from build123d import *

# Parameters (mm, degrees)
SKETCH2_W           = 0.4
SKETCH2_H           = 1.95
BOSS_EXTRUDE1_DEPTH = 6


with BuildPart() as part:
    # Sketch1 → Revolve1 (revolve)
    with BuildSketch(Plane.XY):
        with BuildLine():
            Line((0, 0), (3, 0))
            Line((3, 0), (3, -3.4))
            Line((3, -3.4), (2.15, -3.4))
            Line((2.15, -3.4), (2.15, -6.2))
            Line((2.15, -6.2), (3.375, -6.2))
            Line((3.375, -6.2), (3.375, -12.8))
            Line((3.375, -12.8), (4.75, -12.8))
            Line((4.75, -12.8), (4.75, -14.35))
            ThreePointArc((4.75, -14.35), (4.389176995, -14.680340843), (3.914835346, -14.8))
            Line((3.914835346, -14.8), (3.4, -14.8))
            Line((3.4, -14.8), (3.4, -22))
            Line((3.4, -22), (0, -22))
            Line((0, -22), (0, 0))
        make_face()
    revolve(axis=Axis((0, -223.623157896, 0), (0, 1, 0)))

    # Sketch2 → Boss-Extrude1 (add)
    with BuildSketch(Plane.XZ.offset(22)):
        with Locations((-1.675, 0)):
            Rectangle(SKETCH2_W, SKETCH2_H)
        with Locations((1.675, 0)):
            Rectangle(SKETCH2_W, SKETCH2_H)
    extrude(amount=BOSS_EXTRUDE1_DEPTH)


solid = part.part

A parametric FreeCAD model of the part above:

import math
import FreeCAD as App
import Part
import Sketcher

doc = App.newDocument("Part")
params = doc.addObject("Spreadsheet::Sheet", "Params")
for row, (alias, value) in enumerate([
    ("sketch1_radius", "1 mm"),
    ("sketch1_width", "3 mm"),
    ("sketch1_height", "22 mm"),
    ("sketch1_width2", "3.4 mm"),
    ("sketch1_height2", "7.2 mm"),
    ("revolution_angle", "360 deg"),
    ("sketch2_width", "0.4 mm"),
    ("sketch2_height", "1.95 mm"),
    ("pad1_length", "6 mm"),
], start=1):
    params.set(f"A{row}", alias)
    params.set(f"B{row}", "=" + value)
    params.setAlias(f"B{row}", alias)

body = doc.addObject("PartDesign::Body", "Body")

# Sketch on XY plane
sketch1 = body.newObject("Sketcher::SketchObject", "Sketch")
sketch1.AttachmentSupport = (doc.getObject("XY_Plane"), [""])
sketch1.MapMode = "FlatFace"
sketch1.addGeometry([
    Part.LineSegment(App.Vector(3, 0, 0), App.Vector(0, 0, 0)),  # 0
    Part.LineSegment(App.Vector(0, 0, 0), App.Vector(0, -22, 0)),  # 1
    Part.LineSegment(App.Vector(0, -22, 0), App.Vector(3.4, -22, 0)),  # 2
    Part.LineSegment(App.Vector(3.4, -22, 0), App.Vector(3.4, -14.8, 0)),  # 3
    Part.LineSegment(App.Vector(3.4, -14.8, 0), App.Vector(3.9, -14.8, 0)),  # 4
    Part.ArcOfCircle(Part.Circle(App.Vector(3.9, -13.8, 0), App.Vector(0, 0, 1), 1), math.radians(-90), math.radians(-33)),  # 5
    Part.LineSegment(App.Vector(4.8, -14.3, 0), App.Vector(4.8, -12.8, 0)),  # 6
    Part.LineSegment(App.Vector(4.8, -12.8, 0), App.Vector(3.4, -12.8, 0)),  # 7
    Part.LineSegment(App.Vector(3.4, -12.8, 0), App.Vector(3.4, -6.2, 0)),  # 8
    Part.LineSegment(App.Vector(3.4, -6.2, 0), App.Vector(2.1, -6.2, 0)),  # 9
    Part.LineSegment(App.Vector(2.1, -6.2, 0), App.Vector(2.1, -3.4, 0)),  # 10
    Part.LineSegment(App.Vector(2.1, -3.4, 0), App.Vector(3, -3.4, 0)),  # 11
    Part.LineSegment(App.Vector(3, -3.4, 0), App.Vector(3, 0, 0)),  # 12
], False)
sketch1.addConstraint([
    Sketcher.Constraint("Coincident", 0, 2, 1, 1),
    Sketcher.Constraint("Coincident", 1, 2, 2, 1),
    Sketcher.Constraint("Coincident", 2, 2, 3, 1),
    Sketcher.Constraint("Coincident", 3, 2, 4, 1),
    Sketcher.Constraint("Tangent", 4, 2, 5, 1),
    Sketcher.Constraint("Coincident", 5, 2, 6, 1),
    Sketcher.Constraint("Coincident", 6, 2, 7, 1),
    Sketcher.Constraint("Coincident", 7, 2, 8, 1),
    Sketcher.Constraint("Coincident", 8, 2, 9, 1),
    Sketcher.Constraint("Coincident", 9, 2, 10, 1),
    Sketcher.Constraint("Coincident", 10, 2, 11, 1),
    Sketcher.Constraint("Coincident", 11, 2, 12, 1),
    Sketcher.Constraint("Coincident", 12, 2, 0, 1),
    Sketcher.Constraint("Horizontal", 0),
    Sketcher.Constraint("Vertical", 1),
    Sketcher.Constraint("Horizontal", 2),
    Sketcher.Constraint("Vertical", 3),
    Sketcher.Constraint("Horizontal", 4),
    Sketcher.Constraint("Vertical", 6),
    Sketcher.Constraint("Horizontal", 7),
    Sketcher.Constraint("Vertical", 8),
    Sketcher.Constraint("Horizontal", 9),
    Sketcher.Constraint("Vertical", 10),
    Sketcher.Constraint("Horizontal", 11),
    Sketcher.Constraint("Vertical", 12),
    Sketcher.Constraint("Coincident", 0, 2, -1, 1),
    Sketcher.Constraint("Equal", 2, 12),
    Sketcher.Constraint("Radius", 5, 1.0),
    Sketcher.Constraint("DistanceX", 0, 2, 0, 1, 3.0),
    Sketcher.Constraint("DistanceY", 1, 2, 1, 1, 22.0),
    Sketcher.Constraint("DistanceX", 2, 1, 2, 2, 3.4),
    Sketcher.Constraint("DistanceY", 3, 1, 3, 2, 7.2),
    Sketcher.Constraint("DistanceY", 8, 1, 8, 2, 6.6),
    Sketcher.Constraint("DistanceY", 10, 1, 10, 2, 2.8),
    Sketcher.Constraint("DistanceX", 11, 1, 11, 2, 0.85),
    Sketcher.Constraint("DistanceY", 6, 1, 6, 2, 1.55),
    Sketcher.Constraint("DistanceX", 9, 2, 6, 2, 2.6),
    Sketcher.Constraint("DistanceX", 7, 2, 7, 1, 1.375),
])
sketch1.setExpression("Constraints[27]", "Params.sketch1_radius")
sketch1.setExpression("Constraints[28]", "Params.sketch1_width")
sketch1.setExpression("Constraints[29]", "Params.sketch1_height")
sketch1.setExpression("Constraints[30]", "Params.sketch1_width2")
sketch1.setExpression("Constraints[31]", "Params.sketch1_height2")
revolution = body.newObject("PartDesign::Revolution", "Revolution")
revolution.Profile = sketch1
revolution.ReferenceAxis = (sketch1, ["V_Axis"])
revolution.setExpression("Angle", "Params.revolution_angle")

# Sketch on XZ plane
sketch2 = body.newObject("Sketcher::SketchObject", "Sketch001")
sketch2.AttachmentSupport = (doc.getObject("XZ_Plane"), [""])
sketch2.MapMode = "FlatFace"
sketch2.AttachmentOffset = App.Placement(App.Vector(0, 0, 22), App.Rotation())
sketch2.addGeometry([
    Part.LineSegment(App.Vector(-1.88, 0.97, 0), App.Vector(-1.88, -0.97, 0)),  # 0
    Part.LineSegment(App.Vector(-1.88, -0.97, 0), App.Vector(-1.48, -0.97, 0)),  # 1
    Part.LineSegment(App.Vector(-1.48, -0.97, 0), App.Vector(-1.48, 0.97, 0)),  # 2
    Part.LineSegment(App.Vector(-1.48, 0.97, 0), App.Vector(-1.88, 0.97, 0)),  # 3
    Part.LineSegment(App.Vector(1.48, 0.97, 0), App.Vector(1.48, -0.97, 0)),  # 4
    Part.LineSegment(App.Vector(1.48, -0.97, 0), App.Vector(1.88, -0.97, 0)),  # 5
    Part.LineSegment(App.Vector(1.88, -0.97, 0), App.Vector(1.88, 0.97, 0)),  # 6
    Part.LineSegment(App.Vector(1.88, 0.97, 0), App.Vector(1.48, 0.97, 0)),  # 7
], False)
sketch2.addConstraint([
    Sketcher.Constraint("Coincident", 0, 2, 1, 1),
    Sketcher.Constraint("Coincident", 1, 2, 2, 1),
    Sketcher.Constraint("Coincident", 2, 2, 3, 1),
    Sketcher.Constraint("Coincident", 3, 2, 0, 1),
    Sketcher.Constraint("Coincident", 4, 2, 5, 1),
    Sketcher.Constraint("Coincident", 5, 2, 6, 1),
    Sketcher.Constraint("Coincident", 6, 2, 7, 1),
    Sketcher.Constraint("Coincident", 7, 2, 4, 1),
    Sketcher.Constraint("Vertical", 0),
    Sketcher.Constraint("Horizontal", 1),
    Sketcher.Constraint("Vertical", 2),
    Sketcher.Constraint("Horizontal", 3),
    Sketcher.Constraint("Vertical", 4),
    Sketcher.Constraint("Horizontal", 5),
    Sketcher.Constraint("Vertical", 6),
    Sketcher.Constraint("Horizontal", 7),
    Sketcher.Constraint("Symmetric", 2, 2, 4, 2, -1, 1),
    Sketcher.Constraint("Symmetric", 0, 2, 6, 2, -1, 1),
    Sketcher.Constraint("Horizontal", 1, 2, 4, 2),
    Sketcher.Constraint("DistanceX", 1, 1, 1, 2, 0.4),
    Sketcher.Constraint("DistanceY", 0, 2, 0, 1, 1.95),
    Sketcher.Constraint("DistanceX", 1, 2, 4, 2, 2.95),
])
sketch2.setExpression("Constraints[19]", "Params.sketch2_width")
sketch2.setExpression("Constraints[20]", "Params.sketch2_height")
pad1 = body.newObject("PartDesign::Pad", "Pad")
pad1.Profile = sketch2
pad1.setExpression("Length", "Params.pad1_length")

doc.recompute()
